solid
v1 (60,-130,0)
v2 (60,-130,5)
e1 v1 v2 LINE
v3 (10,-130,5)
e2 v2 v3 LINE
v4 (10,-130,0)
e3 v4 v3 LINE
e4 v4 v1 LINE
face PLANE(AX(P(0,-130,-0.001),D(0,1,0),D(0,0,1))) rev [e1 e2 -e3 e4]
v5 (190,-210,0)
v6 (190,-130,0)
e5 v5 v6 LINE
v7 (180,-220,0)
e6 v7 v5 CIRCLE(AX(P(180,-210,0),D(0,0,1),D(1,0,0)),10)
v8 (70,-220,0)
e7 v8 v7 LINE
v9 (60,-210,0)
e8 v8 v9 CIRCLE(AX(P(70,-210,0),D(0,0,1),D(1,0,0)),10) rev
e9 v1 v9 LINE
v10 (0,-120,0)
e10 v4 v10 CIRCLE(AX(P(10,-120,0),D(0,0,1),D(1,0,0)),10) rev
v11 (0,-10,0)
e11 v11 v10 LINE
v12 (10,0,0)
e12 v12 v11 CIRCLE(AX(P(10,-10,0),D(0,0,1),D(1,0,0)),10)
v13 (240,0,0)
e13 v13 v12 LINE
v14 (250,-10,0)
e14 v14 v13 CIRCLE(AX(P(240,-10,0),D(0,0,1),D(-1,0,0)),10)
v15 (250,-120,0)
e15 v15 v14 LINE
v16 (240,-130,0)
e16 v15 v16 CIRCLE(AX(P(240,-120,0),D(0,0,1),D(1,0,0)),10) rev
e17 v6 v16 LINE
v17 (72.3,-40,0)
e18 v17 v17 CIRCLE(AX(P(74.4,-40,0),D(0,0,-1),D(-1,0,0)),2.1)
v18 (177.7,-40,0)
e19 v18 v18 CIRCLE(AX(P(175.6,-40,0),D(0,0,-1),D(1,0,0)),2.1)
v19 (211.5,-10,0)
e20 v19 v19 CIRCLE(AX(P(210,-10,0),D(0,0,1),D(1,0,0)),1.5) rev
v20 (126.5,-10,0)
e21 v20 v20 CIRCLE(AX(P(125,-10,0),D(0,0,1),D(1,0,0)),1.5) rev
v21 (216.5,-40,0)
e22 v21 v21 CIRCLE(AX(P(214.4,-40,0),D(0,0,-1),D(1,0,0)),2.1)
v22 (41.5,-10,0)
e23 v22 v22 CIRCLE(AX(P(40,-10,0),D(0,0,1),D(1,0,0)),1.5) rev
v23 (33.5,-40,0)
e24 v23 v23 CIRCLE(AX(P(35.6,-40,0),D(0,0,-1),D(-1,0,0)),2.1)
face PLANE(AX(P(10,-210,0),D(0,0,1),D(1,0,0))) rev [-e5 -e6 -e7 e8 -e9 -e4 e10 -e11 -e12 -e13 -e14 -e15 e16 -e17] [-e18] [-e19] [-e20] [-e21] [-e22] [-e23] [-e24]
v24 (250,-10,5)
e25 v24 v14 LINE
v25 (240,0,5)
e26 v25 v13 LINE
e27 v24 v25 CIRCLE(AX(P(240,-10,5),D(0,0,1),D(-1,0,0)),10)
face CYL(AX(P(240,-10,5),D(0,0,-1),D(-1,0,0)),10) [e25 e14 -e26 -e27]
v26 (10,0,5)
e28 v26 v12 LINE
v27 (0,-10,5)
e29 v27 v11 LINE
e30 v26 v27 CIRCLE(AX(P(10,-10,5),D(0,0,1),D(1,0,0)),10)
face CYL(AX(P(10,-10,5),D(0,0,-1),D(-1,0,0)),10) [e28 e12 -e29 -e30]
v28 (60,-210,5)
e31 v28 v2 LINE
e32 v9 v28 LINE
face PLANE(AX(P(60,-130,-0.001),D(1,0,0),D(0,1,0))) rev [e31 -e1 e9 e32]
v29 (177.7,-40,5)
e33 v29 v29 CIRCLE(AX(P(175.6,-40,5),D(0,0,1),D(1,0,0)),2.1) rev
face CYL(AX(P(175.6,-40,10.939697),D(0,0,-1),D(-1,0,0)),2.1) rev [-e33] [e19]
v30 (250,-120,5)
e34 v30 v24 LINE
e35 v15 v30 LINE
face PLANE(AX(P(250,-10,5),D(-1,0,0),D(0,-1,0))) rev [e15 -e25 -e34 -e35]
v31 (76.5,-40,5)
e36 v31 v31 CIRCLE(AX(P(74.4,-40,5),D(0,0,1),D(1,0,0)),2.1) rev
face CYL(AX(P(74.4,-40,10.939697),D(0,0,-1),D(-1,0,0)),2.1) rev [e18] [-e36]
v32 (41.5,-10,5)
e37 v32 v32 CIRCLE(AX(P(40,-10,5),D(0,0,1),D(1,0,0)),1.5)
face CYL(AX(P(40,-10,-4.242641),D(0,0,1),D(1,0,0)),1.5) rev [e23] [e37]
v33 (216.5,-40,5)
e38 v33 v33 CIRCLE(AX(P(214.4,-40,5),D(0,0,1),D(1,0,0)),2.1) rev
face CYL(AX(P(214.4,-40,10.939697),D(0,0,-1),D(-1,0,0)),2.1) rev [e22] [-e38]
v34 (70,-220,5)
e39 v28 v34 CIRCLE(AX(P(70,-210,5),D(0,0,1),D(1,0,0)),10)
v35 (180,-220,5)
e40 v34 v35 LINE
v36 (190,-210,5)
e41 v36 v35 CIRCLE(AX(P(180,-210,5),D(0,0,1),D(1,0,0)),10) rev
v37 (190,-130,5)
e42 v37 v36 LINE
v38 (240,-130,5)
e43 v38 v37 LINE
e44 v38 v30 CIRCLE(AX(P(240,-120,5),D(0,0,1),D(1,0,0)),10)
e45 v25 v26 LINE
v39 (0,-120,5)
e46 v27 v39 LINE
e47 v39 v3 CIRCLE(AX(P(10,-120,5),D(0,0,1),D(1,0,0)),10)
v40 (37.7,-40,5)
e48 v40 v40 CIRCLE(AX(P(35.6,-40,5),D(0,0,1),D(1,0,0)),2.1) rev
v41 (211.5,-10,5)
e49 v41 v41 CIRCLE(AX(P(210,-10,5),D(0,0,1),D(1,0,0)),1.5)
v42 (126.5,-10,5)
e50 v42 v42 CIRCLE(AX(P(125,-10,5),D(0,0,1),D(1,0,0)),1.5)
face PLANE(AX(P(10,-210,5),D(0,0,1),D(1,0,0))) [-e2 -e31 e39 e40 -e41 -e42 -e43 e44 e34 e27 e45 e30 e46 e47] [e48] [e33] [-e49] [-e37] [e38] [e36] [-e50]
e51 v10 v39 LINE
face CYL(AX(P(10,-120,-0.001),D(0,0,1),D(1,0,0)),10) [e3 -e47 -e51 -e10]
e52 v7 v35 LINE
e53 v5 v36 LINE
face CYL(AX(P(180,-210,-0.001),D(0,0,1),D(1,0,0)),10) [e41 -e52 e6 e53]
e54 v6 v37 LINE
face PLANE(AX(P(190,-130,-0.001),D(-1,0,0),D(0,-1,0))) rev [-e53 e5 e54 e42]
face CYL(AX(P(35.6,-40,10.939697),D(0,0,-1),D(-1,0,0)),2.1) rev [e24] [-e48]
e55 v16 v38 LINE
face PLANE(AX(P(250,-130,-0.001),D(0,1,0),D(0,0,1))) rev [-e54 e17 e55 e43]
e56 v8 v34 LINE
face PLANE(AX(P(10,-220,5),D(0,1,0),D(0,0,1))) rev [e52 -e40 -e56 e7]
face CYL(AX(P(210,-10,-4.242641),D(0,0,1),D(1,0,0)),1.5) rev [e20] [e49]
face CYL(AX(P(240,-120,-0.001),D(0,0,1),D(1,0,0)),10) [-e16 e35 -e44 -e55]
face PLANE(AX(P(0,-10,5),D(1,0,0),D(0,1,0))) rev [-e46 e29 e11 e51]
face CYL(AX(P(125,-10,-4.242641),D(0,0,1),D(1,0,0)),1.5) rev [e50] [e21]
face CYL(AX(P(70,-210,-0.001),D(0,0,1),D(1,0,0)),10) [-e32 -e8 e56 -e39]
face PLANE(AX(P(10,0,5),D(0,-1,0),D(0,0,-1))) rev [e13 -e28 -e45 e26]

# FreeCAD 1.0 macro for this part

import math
import FreeCAD as App
import Part
import Sketcher
Q = App.Units.Quantity


def add_polygon(sketch, points):
    """Adds a closed chain of lines whose ends are joined by coincident constraints."""
    first, n = sketch.GeometryCount, len(points)
    for a, b in zip(points, points[1:] + points[:1]):
        sketch.addGeometry(Part.LineSegment(App.Vector(*a, 0), App.Vector(*b, 0)), False)
    for i in range(n):
        sketch.addConstraint(Sketcher.Constraint("Coincident", first + i, 2, first + (i + 1) % n, 1))

doc = App.newDocument("Part")
body = doc.addObject("PartDesign::Body", "Body")

# Sketch on XY plane
sketch1 = body.newObject("Sketcher::SketchObject", "Sketch")
sketch1.AttachmentSupport = (doc.getObject("XY_Plane"), [""])
sketch1.MapMode = "FlatFace"
sketch1.addGeometry([
    Part.LineSegment(App.Vector(240, 0, 0), App.Vector(10, 0, 0)),  # 0
    Part.ArcOfCircle(Part.Circle(App.Vector(10, -10, 0), App.Vector(0, 0, 1), 10), math.radians(90), math.radians(180)),  # 1
    Part.LineSegment(App.Vector(0, -10, 0), App.Vector(0, -210, 0)),  # 2
    Part.ArcOfCircle(Part.Circle(App.Vector(10, -210, 0), App.Vector(0, 0, 1), 10), math.radians(180), math.radians(270)),  # 3
    Part.LineSegment(App.Vector(10, -220, 0), App.Vector(240, -220, 0)),  # 4
    Part.ArcOfCircle(Part.Circle(App.Vector(240, -210, 0), App.Vector(0, 0, 1), 10), math.radians(-90), math.radians(0)),  # 5
    Part.LineSegment(App.Vector(250, -210, 0), App.Vector(250, -10, 0)),  # 6
    Part.ArcOfCircle(Part.Circle(App.Vector(240, -10, 0), App.Vector(0, 0, 1), 10), math.radians(0), math.radians(90)),  # 7
], False)
sketch1.addConstraint([
    Sketcher.Constraint("Tangent", 0, 2, 1, 1),
    Sketcher.Constraint("Tangent", 1, 2, 2, 1),
    Sketcher.Constraint("Tangent", 2, 2, 3, 1),
    Sketcher.Constraint("Tangent", 3, 2, 4, 1),
    Sketcher.Constraint("Tangent", 4, 2, 5, 1),
    Sketcher.Constraint("Tangent", 5, 2, 6, 1),
    Sketcher.Constraint("Tangent", 6, 2, 7, 1),
    Sketcher.Constraint("Tangent", 7, 2, 0, 1),
    Sketcher.Constraint("Horizontal", 0),
    Sketcher.Constraint("Vertical", 2),
    Sketcher.Constraint("Horizontal", 4),
    Sketcher.Constraint("Vertical", 6),
    Sketcher.Constraint("Equal", 1, 3),
    Sketcher.Constraint("Equal", 3, 5),
    Sketcher.Constraint("Equal", 5, 7),
    Sketcher.Constraint("PointOnObject", 0, 2, -1),
    Sketcher.Constraint("PointOnObject", 1, 2, -2),
    Sketcher.Constraint("Radius", 1, Q("10 mm")),
    Sketcher.Constraint("DistanceX", 0, 2, 0, 1, Q("230 mm")),
    Sketcher.Constraint("DistanceY", 2, 2, 2, 1, Q("200 mm")),
])
pad1 = body.newObject("PartDesign::Pad", "Pad")
pad1.Profile = sketch1
pad1.Length = 5

# Sketch on XY plane
sketch2 = body.newObject("Sketcher::SketchObject", "Sketch001")
sketch2.AttachmentSupport = (doc.getObject("XY_Plane"), [""])
sketch2.MapMode = "FlatFace"
sketch2.AttachmentOffset = App.Placement(App.Vector(0, 0, 5), App.Rotation())
sketch2.addGeometry([
    Part.Circle(App.Vector(40, -10, 0), App.Vector(0, 0, 1), 1.5),
    Part.Circle(App.Vector(125, -10, 0), App.Vector(0, 0, 1), 1.5),
    Part.Circle(App.Vector(210, -10, 0), App.Vector(0, 0, 1), 1.5),
], False)
sketch2.addConstraint([
    Sketcher.Constraint("Equal", 0, 1),
    Sketcher.Constraint("Equal", 1, 2),
    Sketcher.Constraint("Horizontal", 0, 3, 1, 3),
    Sketcher.Constraint("Horizontal", 1, 3, 2, 3),
    Sketcher.Constraint("Diameter", 0, Q("3 mm")),
    Sketcher.Constraint("DistanceX", -1, 1, 0, 3, Q("40 mm")),
    Sketcher.Constraint("DistanceY", 0, 3, -1, 1, Q("10 mm")),
    Sketcher.Constraint("DistanceX", -1, 1, 1, 3, Q("125 mm")),
    Sketcher.Constraint("DistanceX", -1, 1, 2, 3, Q("210 mm")),
])
pocket1 = body.newObject("PartDesign::Pocket", "Pocket")
pocket1.Profile = sketch2
pocket1.Length = 5

# Sketch on XY plane
sketch3 = body.newObject("Sketcher::SketchObject", "Sketch002")
sketch3.AttachmentSupport = (doc.getObject("XY_Plane"), [""])
sketch3.MapMode = "FlatFace"
sketch3.addGeometry([
    Part.Circle(App.Vector(74.4, -40, 0), App.Vector(0, 0, 1), 2.1),
    Part.Circle(App.Vector(35.6, -40, 0), App.Vector(0, 0, 1), 2.1),
    Part.Circle(App.Vector(214.4, -40, 0), App.Vector(0, 0, 1), 2.1),
    Part.Circle(App.Vector(175.6, -40, 0), App.Vector(0, 0, 1), 2.1),
], False)
sketch3.addConstraint([
    Sketcher.Constraint("Equal", 0, 1),
    Sketcher.Constraint("Equal", 1, 2),
    Sketcher.Constraint("Equal", 2, 3),
    Sketcher.Constraint("Horizontal", 0, 3, 1, 3),
    Sketcher.Constraint("Horizontal", 1, 3, 2, 3),
    Sketcher.Constraint("Horizontal", 2, 3, 3, 3),
    Sketcher.Constraint("Diameter", 0, Q("4.2 mm")),
    Sketcher.Constraint("DistanceY", 0, 3, -1, 1, Q("40 mm")),
    Sketcher.Constraint("DistanceX", 0, 3, 2, 3, Q("140 mm")),
    Sketcher.Constraint("DistanceX", 1, 3, 3, 3, Q("140 mm")),
    Sketcher.Constraint("DistanceX", -1, 1, 0, 3, Q("74.4 mm")),
    Sketcher.Constraint("DistanceX", -1, 1, 1, 3, Q("35.6 mm")),
])
pocket2 = body.newObject("PartDesign::Pocket", "Pocket001")
pocket2.Profile = sketch3
pocket2.Length = 5
pocket2.Reversed = True

# Sketch on XY plane
sketch4 = body.newObject("Sketcher::SketchObject", "Sketch003")
sketch4.AttachmentSupport = (doc.getObject("XY_Plane"), [""])
sketch4.MapMode = "FlatFace"
sketch4.AttachmentOffset = App.Placement(App.Vector(0, 0, 5), App.Rotation())
add_polygon(sketch4, [(190, -130), (190, -220), (250, -220), (250, -130)])  # lines 0-3
sketch4.addConstraint([
    Sketcher.Constraint("Vertical", 0),
    Sketcher.Constraint("Horizontal", 1),
    Sketcher.Constraint("Vertical", 2),
    Sketcher.Constraint("Horizontal", 3),
    Sketcher.Constraint("DistanceX", 1, 1, 1, 2, Q("60 mm")),
    Sketcher.Constraint("DistanceY", 0, 2, 0, 1, Q("90 mm")),
    Sketcher.Constraint("DistanceX", -1, 1, 0, 2, Q("190 mm")),
    Sketcher.Constraint("DistanceY", 0, 2, -1, 1, Q("220 mm")),
])
pocket3 = body.newObject("PartDesign::Pocket", "Pocket002")
pocket3.Profile = sketch4
pocket3.Type = "UpToFirst"

# Sketch on XY plane
sketch5 = body.newObject("Sketcher::SketchObject", "Sketch004")
sketch5.AttachmentSupport = (doc.getObject("XY_Plane"), [""])
sketch5.MapMode = "FlatFace"
sketch5.AttachmentOffset = App.Placement(App.Vector(0, 0, 5), App.Rotation())
add_polygon(sketch5, [(0, -130), (0, -220), (60, -220), (60, -130)])  # lines 0-3
sketch5.addConstraint([
    Sketcher.Constraint("Vertical", 0),
    Sketcher.Constraint("Horizontal", 1),
    Sketcher.Constraint("Vertical", 2),
    Sketcher.Constraint("Horizontal", 3),
    Sketcher.Constraint("PointOnObject", 0, 2, -2),
    Sketcher.Constraint("DistanceX", 1, 1, 1, 2, Q("60 mm")),
    Sketcher.Constraint("DistanceY", 0, 2, 0, 1, Q("90 mm")),
    Sketcher.Constraint("DistanceY", 0, 2, -1, 1, Q("220 mm")),
])
pocket4 = body.newObject("PartDesign::Pocket", "Pocket003")
pocket4.Profile = sketch5
pocket4.Type = "UpToFirst"

# Sketch on XY plane
sketch6 = body.newObject("Sketcher::SketchObject", "Sketch005")
sketch6.AttachmentSupport = (doc.getObject("XY_Plane"), [""])
sketch6.MapMode = "FlatFace"
sketch6.AttachmentOffset = App.Placement(App.Vector(0, 0, 5), App.Rotation())
sketch6.addGeometry([
    Part.LineSegment(App.Vector(0, -130, 0), App.Vector(10, -130, 0)),
    Part.ArcOfCircle(Part.Circle(App.Vector(10, -120, 0), App.Vector(0, 0, 1), 10), math.radians(180), math.radians(270)),
    Part.LineSegment(App.Vector(0, -120, 0), App.Vector(0, -130, 0)),
], False)
sketch6.addConstraint([
    Sketcher.Constraint("Tangent", 0, 2, 1, 2),
    Sketcher.Constraint("Tangent", 1, 1, 2, 1),
    Sketcher.Constraint("Coincident", 2, 2, 0, 1),
    Sketcher.Constraint("Horizontal", 0),
    Sketcher.Constraint("Vertical", 2),
    Sketcher.Constraint("PointOnObject", 1, 1, -2),
    Sketcher.Constraint("Radius", 1, Q("10 mm")),
    Sketcher.Constraint("DistanceY", 1, 3, -1, 1, Q("120 mm")),
])
pocket5 = body.newObject("PartDesign::Pocket", "Pocket004")
pocket5.Profile = sketch6
pocket5.Type = "UpToFirst"

# Sketch on XY plane
sketch7 = body.newObject("Sketcher::SketchObject", "Sketch006")
sketch7.AttachmentSupport = (doc.getObject("XY_Plane"), [""])
sketch7.MapMode = "FlatFace"
sketch7.AttachmentOffset = App.Placement(App.Vector(0, 0, 5), App.Rotation())
sketch7.addGeometry([
    Part.ArcOfCircle(Part.Circle(App.Vector(70, -210, 0), App.Vector(0, 0, 1), 10), math.radians(180), math.radians(270)),
    Part.LineSegment(App.Vector(60, -210, 0), App.Vector(60, -220, 0)),
    Part.LineSegment(App.Vector(60, -220, 0), App.Vector(70, -220, 0)),
], False)
sketch7.addConstraint([
    Sketcher.Constraint("Tangent", 0, 1, 1, 1),
    Sketcher.Constraint("Coincident", 1, 2, 2, 1),
    Sketcher.Constraint("Tangent", 2, 2, 0, 2),
    Sketcher.Constraint("Vertical", 1),
    Sketcher.Constraint("Horizontal", 2),
    Sketcher.Constraint("Radius", 0, Q("10 mm")),
    Sketcher.Constraint("DistanceX", -1, 1, 0, 3, Q("70 mm")),
    Sketcher.Constraint("DistanceY", 0, 3, -1, 1, Q("210 mm")),
])
pocket6 = body.newObject("PartDesign::Pocket", "Pocket005")
pocket6.Profile = sketch7
pocket6.Type = "UpToFirst"

# Sketch on XY plane
sketch8 = body.newObject("Sketcher::SketchObject", "Sketch007")
sketch8.AttachmentSupport = (doc.getObject("XY_Plane"), [""])
sketch8.MapMode = "FlatFace"
sketch8.AttachmentOffset = App.Placement(App.Vector(0, 0, 5), App.Rotation())
sketch8.addGeometry([
    Part.ArcOfCircle(Part.Circle(App.Vector(180, -210, 0), App.Vector(0, 0, 1), 10), math.radians(-90), math.radians(0)),
    Part.LineSegment(App.Vector(180, -220, 0), App.Vector(190, -220, 0)),
    Part.LineSegment(App.Vector(190, -220, 0), App.Vector(190, -210, 0)),
], False)
sketch8.addConstraint([
    Sketcher.Constraint("Tangent", 0, 1, 1, 1),
    Sketcher.Constraint("Coincident", 1, 2, 2, 1),
    Sketcher.Constraint("Tangent", 2, 2, 0, 2),
    Sketcher.Constraint("Horizontal", 1),
    Sketcher.Constraint("Vertical", 2),
    Sketcher.Constraint("Radius", 0, Q("10 mm")),
    Sketcher.Constraint("DistanceX", -1, 1, 0, 3, Q("180 mm")),
    Sketcher.Constraint("DistanceY", 0, 3, -1, 1, Q("210 mm")),
])
pocket7 = body.newObject("PartDesign::Pocket", "Pocket006")
pocket7.Profile = sketch8
pocket7.Type = "UpToFirst"

# Sketch on XY plane
sketch9 = body.newObject("Sketcher::SketchObject", "Sketch008")
sketch9.AttachmentSupport = (doc.getObject("XY_Plane"), [""])
sketch9.MapMode = "FlatFace"
sketch9.AttachmentOffset = App.Placement(App.Vector(0, 0, 5), App.Rotation())
sketch9.addGeometry([
    Part.ArcOfCircle(Part.Circle(App.Vector(240, -120, 0), App.Vector(0, 0, 1), 10), math.radians(-90), math.radians(0)),
    Part.LineSegment(App.Vector(240, -130, 0), App.Vector(250, -130, 0)),
    Part.LineSegment(App.Vector(250, -130, 0), App.Vector(250, -120, 0)),
], False)
sketch9.addConstraint([
    Sketcher.Constraint("Tangent", 0, 1, 1, 1),
    Sketcher.Constraint("Coincident", 1, 2, 2, 1),
    Sketcher.Constraint("Tangent", 2, 2, 0, 2),
    Sketcher.Constraint("Horizontal", 1),
    Sketcher.Constraint("Vertical", 2),
    Sketcher.Constraint("Radius", 0, Q("10 mm")),
    Sketcher.Constraint("DistanceX", -1, 1, 0, 3, Q("240 mm")),
    Sketcher.Constraint("DistanceY", 0, 3, -1, 1, Q("120 mm")),
])
pocket8 = body.newObject("PartDesign::Pocket", "Pocket007")
pocket8.Profile = sketch9
pocket8.Type = "UpToFirst"

doc.recompute()
